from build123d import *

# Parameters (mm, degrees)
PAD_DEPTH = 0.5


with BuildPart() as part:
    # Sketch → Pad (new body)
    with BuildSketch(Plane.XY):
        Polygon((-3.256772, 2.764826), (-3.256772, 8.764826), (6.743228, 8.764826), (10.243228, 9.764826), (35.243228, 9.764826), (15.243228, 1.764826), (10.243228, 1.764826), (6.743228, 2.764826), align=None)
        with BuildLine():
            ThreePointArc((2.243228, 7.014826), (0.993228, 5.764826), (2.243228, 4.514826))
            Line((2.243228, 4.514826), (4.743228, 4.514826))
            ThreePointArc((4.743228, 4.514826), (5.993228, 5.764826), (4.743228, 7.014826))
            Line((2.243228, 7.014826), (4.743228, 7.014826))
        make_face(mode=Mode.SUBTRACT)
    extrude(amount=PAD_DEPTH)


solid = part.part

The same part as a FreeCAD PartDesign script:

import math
import FreeCAD as App
import Part
import Sketcher

V = App.Vector
Q = App.Units.Quantity


def add_polygon(sketch, points):
    """Adds a closed chain of lines whose ends are joined by coincident constraints."""
    first, n = sketch.GeometryCount, len(points)
    for a, b in zip(points, points[1:] + points[:1]):
        sketch.addGeometry(Part.LineSegment(App.Vector(*a, 0), App.Vector(*b, 0)), False)
    for i in range(n):
        sketch.addConstraint(Sketcher.Constraint("Coincident", first + i, 2, first + (i + 1) % n, 1))

doc = App.newDocument("Part")
body = doc.addObject("PartDesign::Body", "Body")

# Sketch on XY plane
sketch1 = doc.addObject("Sketcher::SketchObject", "Sketch")
body.addObject(sketch1)
sketch1.AttachmentSupport = (doc.XY_Plane, [""])
sketch1.MapMode = "FlatFace"
add_polygon(sketch1, [(-3.3, 8.8), (-3.3, 2.8), (6.7, 2.8), (10.2, 1.8), (15.2, 1.8), (35.2, 9.8), (10.2, 9.8), (6.7, 8.8)])  # lines 0-7
sketch1.addGeometry(Part.LineSegment(V(2.2, 7, 0), V(4.7, 7, 0)), False)  # 8
sketch1.addGeometry(Part.ArcOfCircle(Part.Circle(V(4.7, 5.8, 0), V(0, 0, 1), 1.2), math.radians(-90), math.radians(90)), False)  # 9
sketch1.addGeometry(Part.LineSegment(V(4.7, 4.5, 0), V(2.2, 4.5, 0)), False)  # 10
sketch1.addGeometry(Part.ArcOfCircle(Part.Circle(V(2.2, 5.8, 0), V(0, 0, 1), 1.2), math.radians(90), math.radians(270)), False)  # 11
sketch1.addConstraint(Sketcher.Constraint("Tangent", 8, 2, 9, 2))
sketch1.addConstraint(Sketcher.Constraint("Tangent", 9, 1, 10, 1))
sketch1.addConstraint(Sketcher.Constraint("Tangent", 10, 2, 11, 2))
sketch1.addConstraint(Sketcher.Constraint("Tangent", 11, 1, 8, 1))
sketch1.addConstraint(Sketcher.Constraint("Vertical", 0))
sketch1.addConstraint(Sketcher.Constraint("Horizontal", 1))
sketch1.addConstraint(Sketcher.Constraint("Horizontal", 3))
sketch1.addConstraint(Sketcher.Constraint("Horizontal", 5))
sketch1.addConstraint(Sketcher.Constraint("Horizontal", 7))
sketch1.addConstraint(Sketcher.Constraint("Horizontal", 8))
sketch1.addConstraint(Sketcher.Constraint("Horizontal", 10))
sketch1.addConstraint(Sketcher.Constraint("Vertical", 2, 2, 5, 2))
sketch1.addConstraint(Sketcher.Constraint("Vertical", 1, 2, 6, 2))
sketch1.addConstraint(Sketcher.Constraint("Equal", 2, 6))
sketch1.addConstraint(Sketcher.Constraint("DistanceX", 1, 1, 1, 2, Q("10 mm")))
sketch1.addConstraint(Sketcher.Constraint("DistanceX", 3, 1, 3, 2, Q("5 mm")))
sketch1.addConstraint(Sketcher.Constraint("DistanceX", 5, 2, 5, 1, Q("25 mm")))
sketch1.addConstraint(Sketcher.Constraint("DistanceY", 0, 2, 0, 1, Q("6 mm")))
sketch1.addConstraint(Sketcher.Constraint("Radius", 9, Q("1.25 mm")))
sketch1.addConstraint(Sketcher.Constraint("DistanceX", 8, 1, 8, 2, Q("2.5 mm")))
sketch1.addConstraint(Sketcher.Constraint("DistanceY", 0, 2, 11, 3, Q("3 mm")))
sketch1.addConstraint(Sketcher.Constraint("DistanceX", 0, 2, 9, 3, Q("8 mm")))
sketch1.addConstraint(Sketcher.Constraint("DistanceY", 2, 2, 1, 2, Q("1 mm")))
sketch1.addConstraint(Sketcher.Constraint("DistanceX", 11, 3, 2, 2, Q("8 mm")))
sketch1.addConstraint(Sketcher.Constraint("DistanceX", -1, 1, 9, 3, Q("4.743228 mm")))
sketch1.addConstraint(Sketcher.Constraint("DistanceY", -1, 1, 9, 3, Q("5.764826 mm")))
pad1 = doc.addObject("PartDesign::Pad", "Pad")
body.addObject(pad1)
pad1.Profile = sketch1
pad1.Length = 0.5

doc.recompute()
